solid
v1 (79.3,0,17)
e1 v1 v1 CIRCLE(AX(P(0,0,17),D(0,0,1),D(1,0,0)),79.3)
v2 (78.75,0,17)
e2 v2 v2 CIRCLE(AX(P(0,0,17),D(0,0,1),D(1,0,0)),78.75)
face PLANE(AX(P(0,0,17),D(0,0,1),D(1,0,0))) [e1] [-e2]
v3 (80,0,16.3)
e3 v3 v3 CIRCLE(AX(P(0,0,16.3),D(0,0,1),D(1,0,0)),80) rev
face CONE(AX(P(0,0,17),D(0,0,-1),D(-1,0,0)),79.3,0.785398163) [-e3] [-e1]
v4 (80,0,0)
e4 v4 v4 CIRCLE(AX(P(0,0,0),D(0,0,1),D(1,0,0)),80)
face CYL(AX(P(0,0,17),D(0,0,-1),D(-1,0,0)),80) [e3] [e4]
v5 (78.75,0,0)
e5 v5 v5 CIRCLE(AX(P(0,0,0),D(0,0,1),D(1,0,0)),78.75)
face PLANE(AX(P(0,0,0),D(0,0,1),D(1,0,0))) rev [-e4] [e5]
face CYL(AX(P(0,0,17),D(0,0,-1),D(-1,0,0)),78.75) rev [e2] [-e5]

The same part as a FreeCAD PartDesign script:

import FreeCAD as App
import Part
import Sketcher


def edges_at(feature, points):
    """Names of the edges that pass closest to the given points."""
    edges = feature.Shape.Edges
    near = lambda p: min(range(len(edges)), key=lambda i: edges[i].distToShape(Part.Vertex(*p))[0])
    return sorted({f"Edge{near(p) + 1}" for p in points})

doc = App.newDocument("Part")
body = doc.addObject("PartDesign::Body", "Body")

sketch1 = body.newObject("Sketcher::SketchObject", "Sketch")
sketch1.AttachmentSupport = (doc.getObject("XY_Plane"), [""])
sketch1.MapMode = "FlatFace"
sketch1.addGeometry(Part.Circle(App.Vector(0, 0, 0), App.Vector(0, 0, 1), 80), False)
sketch1.addGeometry(Part.Circle(App.Vector(0, 0, 0), App.Vector(0, 0, 1), 79), False)
sketch1.addConstraint(Sketcher.Constraint("Coincident", 0, 3, -1, 1))
sketch1.addConstraint(Sketcher.Constraint("Coincident", 1, 3, -1, 1))
sketch1.addConstraint(Sketcher.Constraint("Diameter", 0, 160.0))
sketch1.addConstraint(Sketcher.Constraint("Diameter", 1, 157.5))
pad1 = body.newObject("PartDesign::Pad", "Pad")
pad1.Profile = sketch1
pad1.Length = 17
doc.recompute()

chamfer = body.newObject("PartDesign::Chamfer", "Chamfer")
chamfer.Base = (pad1, edges_at(pad1, [(-80, 0, 17)]))
chamfer.Size = 0.7

doc.recompute()
